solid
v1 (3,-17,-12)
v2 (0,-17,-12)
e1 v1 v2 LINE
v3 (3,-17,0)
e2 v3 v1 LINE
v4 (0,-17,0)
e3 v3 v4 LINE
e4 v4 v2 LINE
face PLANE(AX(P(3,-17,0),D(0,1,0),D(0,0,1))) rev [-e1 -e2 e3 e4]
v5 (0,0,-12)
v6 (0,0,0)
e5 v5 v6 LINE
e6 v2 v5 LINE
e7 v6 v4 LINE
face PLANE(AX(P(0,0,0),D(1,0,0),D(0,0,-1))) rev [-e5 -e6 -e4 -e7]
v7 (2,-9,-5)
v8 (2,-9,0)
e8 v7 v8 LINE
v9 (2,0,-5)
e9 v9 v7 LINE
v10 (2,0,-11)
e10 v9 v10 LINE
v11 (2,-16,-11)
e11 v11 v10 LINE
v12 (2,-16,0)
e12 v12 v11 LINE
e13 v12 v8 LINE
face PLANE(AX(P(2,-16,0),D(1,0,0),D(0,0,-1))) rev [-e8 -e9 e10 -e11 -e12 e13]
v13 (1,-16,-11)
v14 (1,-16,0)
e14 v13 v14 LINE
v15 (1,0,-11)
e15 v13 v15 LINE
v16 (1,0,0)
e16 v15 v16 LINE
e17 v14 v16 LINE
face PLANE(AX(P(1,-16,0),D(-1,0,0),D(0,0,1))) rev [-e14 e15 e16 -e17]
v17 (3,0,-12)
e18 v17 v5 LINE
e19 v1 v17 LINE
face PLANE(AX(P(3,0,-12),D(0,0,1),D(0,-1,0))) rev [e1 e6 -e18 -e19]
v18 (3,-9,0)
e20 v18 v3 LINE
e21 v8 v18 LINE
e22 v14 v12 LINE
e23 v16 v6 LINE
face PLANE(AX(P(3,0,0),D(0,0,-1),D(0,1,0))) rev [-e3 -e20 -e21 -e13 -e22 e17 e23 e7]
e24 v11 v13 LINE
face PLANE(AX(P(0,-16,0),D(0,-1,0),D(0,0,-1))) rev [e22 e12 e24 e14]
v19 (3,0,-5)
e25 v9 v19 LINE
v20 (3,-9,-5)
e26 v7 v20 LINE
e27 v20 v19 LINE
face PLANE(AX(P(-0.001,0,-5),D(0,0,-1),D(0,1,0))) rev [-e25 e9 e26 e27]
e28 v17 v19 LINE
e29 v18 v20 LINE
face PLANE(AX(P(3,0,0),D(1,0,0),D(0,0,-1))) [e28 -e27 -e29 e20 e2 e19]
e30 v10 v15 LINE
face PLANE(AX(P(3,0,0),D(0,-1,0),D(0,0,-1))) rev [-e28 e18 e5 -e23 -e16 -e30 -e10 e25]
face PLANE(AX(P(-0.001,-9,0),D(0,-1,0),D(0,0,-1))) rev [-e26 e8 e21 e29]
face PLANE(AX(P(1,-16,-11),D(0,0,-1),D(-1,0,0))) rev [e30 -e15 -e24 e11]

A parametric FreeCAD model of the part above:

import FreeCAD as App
import Part
import Sketcher

V = App.Vector
Q = App.Units.Quantity

doc = App.newDocument("Part")
body = doc.addObject("PartDesign::Body", "Body")

sketch1 = body.newObject("Sketcher::SketchObject", "Sketch")
sketch1.AttachmentSupport = (doc.getObject("YZ_Plane"), [""])
sketch1.MapMode = "FlatFace"
sketch1.addGeometry(Part.LineSegment(V(0, 0, 0), V(-17, 0, 0)), False)
sketch1.addGeometry(Part.LineSegment(V(-17, 0, 0), V(-17, -12, 0)), False)
sketch1.addGeometry(Part.LineSegment(V(-17, -12, 0), V(0, -12, 0)), False)
sketch1.addGeometry(Part.LineSegment(V(0, -12, 0), V(0, 0, 0)), False)
sketch1.addConstraint(Sketcher.Constraint("Coincident", 0, 2, 1, 1))
sketch1.addConstraint(Sketcher.Constraint("Coincident", 1, 2, 2, 1))
sketch1.addConstraint(Sketcher.Constraint("Coincident", 2, 2, 3, 1))
sketch1.addConstraint(Sketcher.Constraint("Coincident", 3, 2, 0, 1))
sketch1.addConstraint(Sketcher.Constraint("Horizontal", 0))
sketch1.addConstraint(Sketcher.Constraint("Vertical", 1))
sketch1.addConstraint(Sketcher.Constraint("Horizontal", 2))
sketch1.addConstraint(Sketcher.Constraint("Vertical", 3))
sketch1.addConstraint(Sketcher.Constraint("Coincident", 3, 2, -1, 1))
sketch1.addConstraint(Sketcher.Constraint("DistanceX", 0, 2, 0, 1, Q("17 mm")))
sketch1.addConstraint(Sketcher.Constraint("DistanceY", 1, 2, 1, 1, Q("12 mm")))
pad1 = body.newObject("PartDesign::Pad", "Pad")
pad1.Profile = sketch1
pad1.Length = 3

sketch2 = body.newObject("Sketcher::SketchObject", "Sketch001")
sketch2.AttachmentSupport = (doc.getObject("XZ_Plane"), [""])
sketch2.MapMode = "FlatFace"
sketch2.addGeometry(Part.LineSegment(V(1, -11, 0), V(1, 0, 0)), False)
sketch2.addGeometry(Part.LineSegment(V(1, 0, 0), V(2, 0, 0)), False)
sketch2.addGeometry(Part.LineSegment(V(2, 0, 0), V(2, -11, 0)), False)
sketch2.addGeometry(Part.LineSegment(V(2, -11, 0), V(1, -11, 0)), False)
sketch2.addConstraint(Sketcher.Constraint("Coincident", 0, 2, 1, 1))
sketch2.addConstraint(Sketcher.Constraint("Coincident", 1, 2, 2, 1))
sketch2.addConstraint(Sketcher.Constraint("Coincident", 2, 2, 3, 1))
sketch2.addConstraint(Sketcher.Constraint("Coincident", 3, 2, 0, 1))
sketch2.addConstraint(Sketcher.Constraint("Vertical", 0))
sketch2.addConstraint(Sketcher.Constraint("Horizontal", 1))
sketch2.addConstraint(Sketcher.Constraint("Vertical", 2))
sketch2.addConstraint(Sketcher.Constraint("Horizontal", 3))
sketch2.addConstraint(Sketcher.Constraint("PointOnObject", 0, 2, -1))
sketch2.addConstraint(Sketcher.Constraint("DistanceX", 1, 1, 1, 2, Q("1 mm")))
sketch2.addConstraint(Sketcher.Constraint("DistanceY", 0, 1, 0, 2, Q("11 mm")))
sketch2.addConstraint(Sketcher.Constraint("DistanceX", -1, 1, 0, 2, Q("1 mm")))
pocket1 = body.newObject("PartDesign::Pocket", "Pocket")
pocket1.Profile = sketch2
pocket1.Length = 16
pocket1.Reversed = True

sketch3 = body.newObject("Sketcher::SketchObject", "Sketch002")
sketch3.AttachmentSupport = (doc.getObject("YZ_Plane"), [""])
sketch3.MapMode = "FlatFace"
sketch3.AttachmentOffset = App.Placement(V(0, 0, 3), App.Rotation())
sketch3.addGeometry(Part.LineSegment(V(0, 0, 0), V(-9, 0, 0)), False)
sketch3.addGeometry(Part.LineSegment(V(-9, 0, 0), V(-9, -5, 0)), False)
sketch3.addGeometry(Part.LineSegment(V(-9, -5, 0), V(0, -5, 0)), False)
sketch3.addGeometry(Part.LineSegment(V(0, -5, 0), V(0, 0, 0)), False)
sketch3.addConstraint(Sketcher.Constraint("Coincident", 0, 2, 1, 1))
sketch3.addConstraint(Sketcher.Constraint("Coincident", 1, 2, 2, 1))
sketch3.addConstraint(Sketcher.Constraint("Coincident", 2, 2, 3, 1))
sketch3.addConstraint(Sketcher.Constraint("Coincident", 3, 2, 0, 1))
sketch3.addConstraint(Sketcher.Constraint("Horizontal", 0))
sketch3.addConstraint(Sketcher.Constraint("Vertical", 1))
sketch3.addConstraint(Sketcher.Constraint("Horizontal", 2))
sketch3.addConstraint(Sketcher.Constraint("Vertical", 3))
sketch3.addConstraint(Sketcher.Constraint("Coincident", 3, 2, -1, 1))
sketch3.addConstraint(Sketcher.Constraint("DistanceX", 0, 2, 0, 1, Q("9 mm")))
sketch3.addConstraint(Sketcher.Constraint("DistanceY", 1, 2, 1, 1, Q("5 mm")))
pocket2 = body.newObject("PartDesign::Pocket", "Pocket001")
pocket2.Profile = sketch3
pocket2.Type = "UpToFirst"

doc.recompute()
